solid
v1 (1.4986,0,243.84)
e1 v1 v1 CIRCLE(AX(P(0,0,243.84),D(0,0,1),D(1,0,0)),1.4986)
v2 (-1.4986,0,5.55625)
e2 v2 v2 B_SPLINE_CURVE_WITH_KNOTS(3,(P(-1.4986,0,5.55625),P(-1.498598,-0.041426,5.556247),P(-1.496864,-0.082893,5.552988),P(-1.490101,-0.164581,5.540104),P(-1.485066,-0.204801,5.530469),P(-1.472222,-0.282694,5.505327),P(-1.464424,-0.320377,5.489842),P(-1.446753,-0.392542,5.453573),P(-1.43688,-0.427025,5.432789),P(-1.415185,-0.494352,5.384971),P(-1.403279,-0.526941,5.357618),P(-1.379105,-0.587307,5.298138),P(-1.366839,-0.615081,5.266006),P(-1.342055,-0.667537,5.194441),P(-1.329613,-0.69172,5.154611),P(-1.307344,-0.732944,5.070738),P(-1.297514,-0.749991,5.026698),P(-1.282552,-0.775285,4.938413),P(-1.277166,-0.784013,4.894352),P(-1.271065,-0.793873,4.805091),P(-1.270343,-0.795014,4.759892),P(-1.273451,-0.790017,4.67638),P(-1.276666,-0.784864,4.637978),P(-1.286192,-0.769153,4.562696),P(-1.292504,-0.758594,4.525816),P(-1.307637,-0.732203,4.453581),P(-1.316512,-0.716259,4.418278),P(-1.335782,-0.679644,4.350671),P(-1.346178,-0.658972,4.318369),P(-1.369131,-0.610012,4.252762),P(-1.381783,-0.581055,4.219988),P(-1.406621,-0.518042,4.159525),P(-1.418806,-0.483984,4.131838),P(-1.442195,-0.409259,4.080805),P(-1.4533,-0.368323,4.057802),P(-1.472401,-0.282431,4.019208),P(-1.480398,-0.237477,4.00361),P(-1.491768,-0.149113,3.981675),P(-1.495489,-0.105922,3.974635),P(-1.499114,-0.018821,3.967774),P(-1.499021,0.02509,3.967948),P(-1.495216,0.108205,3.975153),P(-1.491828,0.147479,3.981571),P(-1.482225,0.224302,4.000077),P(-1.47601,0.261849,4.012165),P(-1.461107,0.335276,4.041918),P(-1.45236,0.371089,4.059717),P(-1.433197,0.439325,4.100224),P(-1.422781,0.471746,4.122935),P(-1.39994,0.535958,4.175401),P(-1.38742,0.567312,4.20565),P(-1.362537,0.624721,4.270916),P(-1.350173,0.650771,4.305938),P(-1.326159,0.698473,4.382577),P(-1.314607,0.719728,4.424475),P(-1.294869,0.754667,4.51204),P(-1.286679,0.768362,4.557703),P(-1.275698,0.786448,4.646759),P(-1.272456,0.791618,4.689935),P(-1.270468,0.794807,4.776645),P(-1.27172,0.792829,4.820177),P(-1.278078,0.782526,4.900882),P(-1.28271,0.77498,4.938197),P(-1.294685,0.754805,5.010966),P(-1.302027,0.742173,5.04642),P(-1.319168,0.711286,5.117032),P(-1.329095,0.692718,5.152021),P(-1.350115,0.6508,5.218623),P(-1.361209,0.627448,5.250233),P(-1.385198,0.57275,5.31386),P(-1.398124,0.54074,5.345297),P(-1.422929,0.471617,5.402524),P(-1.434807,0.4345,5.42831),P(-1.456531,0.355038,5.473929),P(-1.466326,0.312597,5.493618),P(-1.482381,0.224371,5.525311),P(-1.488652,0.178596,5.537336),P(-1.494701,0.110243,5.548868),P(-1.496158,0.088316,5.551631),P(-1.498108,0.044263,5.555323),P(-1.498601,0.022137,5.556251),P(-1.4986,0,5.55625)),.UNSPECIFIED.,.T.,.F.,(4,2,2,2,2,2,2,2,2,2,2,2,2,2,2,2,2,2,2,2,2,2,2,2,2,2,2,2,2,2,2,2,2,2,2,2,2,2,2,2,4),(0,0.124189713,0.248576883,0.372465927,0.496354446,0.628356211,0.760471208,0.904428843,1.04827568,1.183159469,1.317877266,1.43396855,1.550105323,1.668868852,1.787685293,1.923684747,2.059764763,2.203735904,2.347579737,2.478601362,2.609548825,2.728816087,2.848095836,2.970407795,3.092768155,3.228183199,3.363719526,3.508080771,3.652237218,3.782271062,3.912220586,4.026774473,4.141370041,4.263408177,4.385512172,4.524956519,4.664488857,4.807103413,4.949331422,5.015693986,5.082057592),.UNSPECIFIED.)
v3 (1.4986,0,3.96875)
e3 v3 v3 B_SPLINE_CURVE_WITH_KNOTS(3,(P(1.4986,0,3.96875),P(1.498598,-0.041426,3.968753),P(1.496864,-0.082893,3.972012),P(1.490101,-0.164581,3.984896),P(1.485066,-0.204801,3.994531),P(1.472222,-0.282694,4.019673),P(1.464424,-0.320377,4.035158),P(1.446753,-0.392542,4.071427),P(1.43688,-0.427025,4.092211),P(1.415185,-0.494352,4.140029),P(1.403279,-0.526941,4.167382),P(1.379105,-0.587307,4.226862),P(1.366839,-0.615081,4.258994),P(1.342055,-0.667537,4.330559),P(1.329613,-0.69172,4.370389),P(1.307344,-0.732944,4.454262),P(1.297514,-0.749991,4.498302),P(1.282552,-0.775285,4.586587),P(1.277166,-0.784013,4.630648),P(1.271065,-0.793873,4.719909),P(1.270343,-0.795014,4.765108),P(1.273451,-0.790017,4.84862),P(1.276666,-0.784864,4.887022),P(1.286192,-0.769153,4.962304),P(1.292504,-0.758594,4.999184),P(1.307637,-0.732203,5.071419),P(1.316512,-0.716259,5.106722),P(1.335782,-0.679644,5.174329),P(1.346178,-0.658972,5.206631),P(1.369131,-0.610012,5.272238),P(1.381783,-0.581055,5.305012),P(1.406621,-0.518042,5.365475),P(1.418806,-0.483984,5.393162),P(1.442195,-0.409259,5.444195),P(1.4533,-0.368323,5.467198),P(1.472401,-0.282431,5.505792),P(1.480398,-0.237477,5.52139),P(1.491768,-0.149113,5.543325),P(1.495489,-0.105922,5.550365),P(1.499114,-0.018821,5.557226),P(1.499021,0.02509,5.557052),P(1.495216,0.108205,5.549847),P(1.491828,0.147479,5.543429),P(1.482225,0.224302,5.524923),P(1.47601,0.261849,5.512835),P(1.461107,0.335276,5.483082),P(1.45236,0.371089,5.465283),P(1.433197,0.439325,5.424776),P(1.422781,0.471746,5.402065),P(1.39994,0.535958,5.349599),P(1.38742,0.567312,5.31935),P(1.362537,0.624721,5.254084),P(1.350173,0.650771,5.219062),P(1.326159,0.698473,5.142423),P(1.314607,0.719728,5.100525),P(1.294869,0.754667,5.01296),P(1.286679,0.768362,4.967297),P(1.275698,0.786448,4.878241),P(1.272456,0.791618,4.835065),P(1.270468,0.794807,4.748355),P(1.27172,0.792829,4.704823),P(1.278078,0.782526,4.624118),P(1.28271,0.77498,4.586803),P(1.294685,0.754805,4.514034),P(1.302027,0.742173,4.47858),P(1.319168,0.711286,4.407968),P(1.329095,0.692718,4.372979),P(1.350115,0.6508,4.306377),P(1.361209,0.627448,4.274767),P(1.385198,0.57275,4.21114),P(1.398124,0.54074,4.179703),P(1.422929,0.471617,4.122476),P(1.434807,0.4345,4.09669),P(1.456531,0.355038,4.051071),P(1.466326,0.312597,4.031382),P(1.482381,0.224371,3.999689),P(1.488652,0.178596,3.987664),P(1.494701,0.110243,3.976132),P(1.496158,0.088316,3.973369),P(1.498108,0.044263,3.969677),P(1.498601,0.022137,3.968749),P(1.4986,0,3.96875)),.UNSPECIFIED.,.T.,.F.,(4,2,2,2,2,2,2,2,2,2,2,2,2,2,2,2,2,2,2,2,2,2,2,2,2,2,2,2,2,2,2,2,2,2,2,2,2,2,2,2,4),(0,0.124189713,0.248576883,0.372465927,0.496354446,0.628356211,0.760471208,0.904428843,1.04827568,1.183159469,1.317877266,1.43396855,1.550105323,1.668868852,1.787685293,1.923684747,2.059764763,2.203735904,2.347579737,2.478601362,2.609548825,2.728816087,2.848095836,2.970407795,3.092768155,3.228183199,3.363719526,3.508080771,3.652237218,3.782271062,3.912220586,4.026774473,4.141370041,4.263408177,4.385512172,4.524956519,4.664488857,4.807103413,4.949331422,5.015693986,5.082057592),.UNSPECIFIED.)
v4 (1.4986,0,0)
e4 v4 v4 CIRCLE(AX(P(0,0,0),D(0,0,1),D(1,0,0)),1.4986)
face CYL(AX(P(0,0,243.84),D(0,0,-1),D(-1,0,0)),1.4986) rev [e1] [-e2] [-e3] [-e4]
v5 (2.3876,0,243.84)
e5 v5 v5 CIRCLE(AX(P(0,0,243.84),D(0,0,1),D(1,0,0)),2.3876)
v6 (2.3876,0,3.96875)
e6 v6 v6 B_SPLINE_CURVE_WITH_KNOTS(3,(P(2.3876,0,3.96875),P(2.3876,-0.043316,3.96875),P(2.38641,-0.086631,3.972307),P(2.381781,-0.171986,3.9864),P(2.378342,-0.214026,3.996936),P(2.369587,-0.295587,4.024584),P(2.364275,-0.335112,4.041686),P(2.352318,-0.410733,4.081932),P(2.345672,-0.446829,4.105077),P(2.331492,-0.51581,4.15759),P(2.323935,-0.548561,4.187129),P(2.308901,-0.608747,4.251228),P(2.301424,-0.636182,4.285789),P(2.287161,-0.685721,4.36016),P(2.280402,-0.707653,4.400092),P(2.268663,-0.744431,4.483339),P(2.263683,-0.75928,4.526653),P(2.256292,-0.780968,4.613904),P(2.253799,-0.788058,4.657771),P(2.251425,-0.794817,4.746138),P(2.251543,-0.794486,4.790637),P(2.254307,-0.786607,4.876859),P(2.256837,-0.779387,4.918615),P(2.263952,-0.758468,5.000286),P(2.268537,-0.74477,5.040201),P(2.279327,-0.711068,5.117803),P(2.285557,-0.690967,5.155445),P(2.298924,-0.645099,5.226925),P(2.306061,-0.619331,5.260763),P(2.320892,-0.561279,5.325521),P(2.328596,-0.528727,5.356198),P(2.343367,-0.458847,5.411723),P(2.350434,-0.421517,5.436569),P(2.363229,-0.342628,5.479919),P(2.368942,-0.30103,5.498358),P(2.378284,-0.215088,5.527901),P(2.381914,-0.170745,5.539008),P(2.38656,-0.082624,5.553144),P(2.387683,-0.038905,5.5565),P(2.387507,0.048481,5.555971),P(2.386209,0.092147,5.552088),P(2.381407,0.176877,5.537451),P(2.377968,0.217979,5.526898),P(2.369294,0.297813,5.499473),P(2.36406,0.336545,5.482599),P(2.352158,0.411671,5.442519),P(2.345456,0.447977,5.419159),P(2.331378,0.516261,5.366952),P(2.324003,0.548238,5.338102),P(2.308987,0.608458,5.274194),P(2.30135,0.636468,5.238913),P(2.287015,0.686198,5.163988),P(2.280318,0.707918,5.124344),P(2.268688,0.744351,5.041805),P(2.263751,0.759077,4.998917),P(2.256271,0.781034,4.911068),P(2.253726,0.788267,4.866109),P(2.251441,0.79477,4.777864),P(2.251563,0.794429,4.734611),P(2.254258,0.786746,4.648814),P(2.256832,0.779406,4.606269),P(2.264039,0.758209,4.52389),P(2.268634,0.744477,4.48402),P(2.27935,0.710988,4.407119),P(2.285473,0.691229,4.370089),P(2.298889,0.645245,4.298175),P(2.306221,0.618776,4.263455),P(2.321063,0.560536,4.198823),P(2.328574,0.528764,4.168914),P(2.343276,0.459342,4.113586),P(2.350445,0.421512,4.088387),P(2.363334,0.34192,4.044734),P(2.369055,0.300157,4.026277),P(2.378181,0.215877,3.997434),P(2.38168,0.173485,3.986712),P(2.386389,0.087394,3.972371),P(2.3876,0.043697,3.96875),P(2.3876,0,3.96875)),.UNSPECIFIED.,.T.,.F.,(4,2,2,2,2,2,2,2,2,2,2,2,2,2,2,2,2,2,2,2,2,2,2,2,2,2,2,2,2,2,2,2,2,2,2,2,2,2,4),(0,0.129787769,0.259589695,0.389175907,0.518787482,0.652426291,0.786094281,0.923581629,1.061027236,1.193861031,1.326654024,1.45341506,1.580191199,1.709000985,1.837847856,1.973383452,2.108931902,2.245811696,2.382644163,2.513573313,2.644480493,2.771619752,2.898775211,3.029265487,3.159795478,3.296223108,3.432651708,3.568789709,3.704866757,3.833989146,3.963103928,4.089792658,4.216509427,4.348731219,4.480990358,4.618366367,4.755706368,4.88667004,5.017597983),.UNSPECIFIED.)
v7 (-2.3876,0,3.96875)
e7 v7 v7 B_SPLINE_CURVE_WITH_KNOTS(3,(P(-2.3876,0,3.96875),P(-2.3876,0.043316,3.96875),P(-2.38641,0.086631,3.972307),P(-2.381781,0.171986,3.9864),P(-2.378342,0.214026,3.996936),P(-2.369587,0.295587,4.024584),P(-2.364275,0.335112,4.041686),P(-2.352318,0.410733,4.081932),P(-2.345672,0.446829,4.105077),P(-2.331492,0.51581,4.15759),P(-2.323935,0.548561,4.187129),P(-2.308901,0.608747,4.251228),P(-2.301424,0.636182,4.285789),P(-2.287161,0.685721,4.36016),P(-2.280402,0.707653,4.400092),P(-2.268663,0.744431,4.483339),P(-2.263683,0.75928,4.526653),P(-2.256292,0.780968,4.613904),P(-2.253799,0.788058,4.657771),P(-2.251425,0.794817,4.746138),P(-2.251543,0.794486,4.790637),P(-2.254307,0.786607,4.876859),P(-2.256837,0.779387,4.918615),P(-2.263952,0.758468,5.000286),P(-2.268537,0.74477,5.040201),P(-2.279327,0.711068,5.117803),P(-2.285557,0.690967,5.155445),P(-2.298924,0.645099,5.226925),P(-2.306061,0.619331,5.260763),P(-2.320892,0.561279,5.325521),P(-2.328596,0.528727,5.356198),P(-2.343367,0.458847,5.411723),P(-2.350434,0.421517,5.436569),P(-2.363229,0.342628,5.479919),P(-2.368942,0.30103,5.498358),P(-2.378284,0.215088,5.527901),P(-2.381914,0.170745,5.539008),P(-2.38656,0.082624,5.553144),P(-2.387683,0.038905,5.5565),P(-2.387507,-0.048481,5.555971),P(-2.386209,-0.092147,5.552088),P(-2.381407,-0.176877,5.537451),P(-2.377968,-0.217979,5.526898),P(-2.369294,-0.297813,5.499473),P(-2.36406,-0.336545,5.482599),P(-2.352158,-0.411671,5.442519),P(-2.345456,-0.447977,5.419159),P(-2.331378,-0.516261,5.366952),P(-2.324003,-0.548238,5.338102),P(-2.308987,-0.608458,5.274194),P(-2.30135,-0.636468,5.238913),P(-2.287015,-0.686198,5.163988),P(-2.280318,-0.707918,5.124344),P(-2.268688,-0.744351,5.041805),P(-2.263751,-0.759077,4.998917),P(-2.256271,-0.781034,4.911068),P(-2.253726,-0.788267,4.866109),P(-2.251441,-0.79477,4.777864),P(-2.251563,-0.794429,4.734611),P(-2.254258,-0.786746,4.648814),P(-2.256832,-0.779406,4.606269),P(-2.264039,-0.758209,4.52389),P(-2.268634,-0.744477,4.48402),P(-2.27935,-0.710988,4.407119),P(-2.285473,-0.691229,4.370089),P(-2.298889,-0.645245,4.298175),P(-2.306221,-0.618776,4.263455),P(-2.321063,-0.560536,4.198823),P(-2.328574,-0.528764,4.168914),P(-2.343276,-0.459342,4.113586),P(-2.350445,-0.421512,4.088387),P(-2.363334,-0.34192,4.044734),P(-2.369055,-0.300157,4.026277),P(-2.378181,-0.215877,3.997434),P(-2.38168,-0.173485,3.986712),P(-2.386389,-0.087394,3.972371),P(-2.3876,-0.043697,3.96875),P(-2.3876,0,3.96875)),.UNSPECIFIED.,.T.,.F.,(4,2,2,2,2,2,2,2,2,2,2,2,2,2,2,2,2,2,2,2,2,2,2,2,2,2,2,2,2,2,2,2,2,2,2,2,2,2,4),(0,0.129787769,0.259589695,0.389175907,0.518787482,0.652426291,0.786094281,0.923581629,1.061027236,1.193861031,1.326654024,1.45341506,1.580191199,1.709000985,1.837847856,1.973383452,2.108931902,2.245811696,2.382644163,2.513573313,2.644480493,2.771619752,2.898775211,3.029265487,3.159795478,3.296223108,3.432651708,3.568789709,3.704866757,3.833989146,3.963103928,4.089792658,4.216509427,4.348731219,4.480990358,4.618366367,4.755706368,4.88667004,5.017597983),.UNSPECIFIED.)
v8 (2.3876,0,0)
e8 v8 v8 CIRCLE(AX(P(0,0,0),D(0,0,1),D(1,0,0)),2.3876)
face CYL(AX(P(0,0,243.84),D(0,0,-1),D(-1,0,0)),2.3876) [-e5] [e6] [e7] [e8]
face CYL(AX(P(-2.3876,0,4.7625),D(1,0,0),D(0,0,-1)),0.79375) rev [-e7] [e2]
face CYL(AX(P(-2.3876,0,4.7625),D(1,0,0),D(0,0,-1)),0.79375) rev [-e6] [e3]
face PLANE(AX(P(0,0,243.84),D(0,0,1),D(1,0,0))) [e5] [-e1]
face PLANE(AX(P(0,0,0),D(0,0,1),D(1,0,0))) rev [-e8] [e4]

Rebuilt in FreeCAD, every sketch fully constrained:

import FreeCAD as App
import Part
import Sketcher
Q = App.Units.Quantity

doc = App.newDocument("Part")
params = doc.addObject("Spreadsheet::Sheet", "Params")
for row, (alias, value) in enumerate([
    ("sketch1_diameter", "0.188 in"),
    ("sketch1_diameter2", "0.118 in"),
    ("pad1_length", "9.6 in"),
    ("sketch2_diameter", "0.0625 in"),
], start=1):
    params.set(f"A{row}", alias)
    params.set(f"B{row}", "=" + value)
    params.setAlias(f"B{row}", alias)

body = doc.addObject("PartDesign::Body", "Body")

# Sketch on XY plane
sketch1 = body.newObject("Sketcher::SketchObject", "Sketch")
sketch1.AttachmentSupport = (doc.getObject("XY_Plane"), [""])
sketch1.MapMode = "FlatFace"
sketch1.addGeometry(Part.Circle(App.Vector(0, 0, 0), App.Vector(0, 0, 1), 2.3876), False)
sketch1.addGeometry(Part.Circle(App.Vector(0, 0, 0), App.Vector(0, 0, 1), 1.4986), False)
sketch1.addConstraint(Sketcher.Constraint("Coincident", 0, 3, -1, 1))
sketch1.addConstraint(Sketcher.Constraint("Coincident", 1, 3, -1, 1))
sketch1.addConstraint(Sketcher.Constraint("Diameter", 0, Q("0.188 in")))
sketch1.addConstraint(Sketcher.Constraint("Diameter", 1, Q("0.118 in")))
sketch1.setExpression("Constraints[2]", "Params.sketch1_diameter")
sketch1.setExpression("Constraints[3]", "Params.sketch1_diameter2")
pad1 = body.newObject("PartDesign::Pad", "Pad")
pad1.Profile = sketch1
pad1.setExpression("Length", "Params.pad1_length")

# Sketch on YZ plane
sketch2 = body.newObject("Sketcher::SketchObject", "Sketch001")
sketch2.AttachmentSupport = (doc.getObject("YZ_Plane"), [""])
sketch2.MapMode = "FlatFace"
sketch2.addGeometry(Part.Circle(App.Vector(0, 4.7625, 0), App.Vector(0, 0, 1), 0.79375), False)
sketch2.addConstraint(Sketcher.Constraint("PointOnObject", 0, 3, -2))
sketch2.addConstraint(Sketcher.Constraint("Diameter", 0, Q("0.0625 in")))
sketch2.addConstraint(Sketcher.Constraint("DistanceY", -1, 1, 0, 3, Q("0.1875 in")))
sketch2.setExpression("Constraints[1]", "Params.sketch2_diameter")
pocket1 = body.newObject("PartDesign::Pocket", "Pocket")
pocket1.Profile = sketch2
pocket1.Type = "ThroughAll"
pocket1.Midplane = True

doc.recompute()
